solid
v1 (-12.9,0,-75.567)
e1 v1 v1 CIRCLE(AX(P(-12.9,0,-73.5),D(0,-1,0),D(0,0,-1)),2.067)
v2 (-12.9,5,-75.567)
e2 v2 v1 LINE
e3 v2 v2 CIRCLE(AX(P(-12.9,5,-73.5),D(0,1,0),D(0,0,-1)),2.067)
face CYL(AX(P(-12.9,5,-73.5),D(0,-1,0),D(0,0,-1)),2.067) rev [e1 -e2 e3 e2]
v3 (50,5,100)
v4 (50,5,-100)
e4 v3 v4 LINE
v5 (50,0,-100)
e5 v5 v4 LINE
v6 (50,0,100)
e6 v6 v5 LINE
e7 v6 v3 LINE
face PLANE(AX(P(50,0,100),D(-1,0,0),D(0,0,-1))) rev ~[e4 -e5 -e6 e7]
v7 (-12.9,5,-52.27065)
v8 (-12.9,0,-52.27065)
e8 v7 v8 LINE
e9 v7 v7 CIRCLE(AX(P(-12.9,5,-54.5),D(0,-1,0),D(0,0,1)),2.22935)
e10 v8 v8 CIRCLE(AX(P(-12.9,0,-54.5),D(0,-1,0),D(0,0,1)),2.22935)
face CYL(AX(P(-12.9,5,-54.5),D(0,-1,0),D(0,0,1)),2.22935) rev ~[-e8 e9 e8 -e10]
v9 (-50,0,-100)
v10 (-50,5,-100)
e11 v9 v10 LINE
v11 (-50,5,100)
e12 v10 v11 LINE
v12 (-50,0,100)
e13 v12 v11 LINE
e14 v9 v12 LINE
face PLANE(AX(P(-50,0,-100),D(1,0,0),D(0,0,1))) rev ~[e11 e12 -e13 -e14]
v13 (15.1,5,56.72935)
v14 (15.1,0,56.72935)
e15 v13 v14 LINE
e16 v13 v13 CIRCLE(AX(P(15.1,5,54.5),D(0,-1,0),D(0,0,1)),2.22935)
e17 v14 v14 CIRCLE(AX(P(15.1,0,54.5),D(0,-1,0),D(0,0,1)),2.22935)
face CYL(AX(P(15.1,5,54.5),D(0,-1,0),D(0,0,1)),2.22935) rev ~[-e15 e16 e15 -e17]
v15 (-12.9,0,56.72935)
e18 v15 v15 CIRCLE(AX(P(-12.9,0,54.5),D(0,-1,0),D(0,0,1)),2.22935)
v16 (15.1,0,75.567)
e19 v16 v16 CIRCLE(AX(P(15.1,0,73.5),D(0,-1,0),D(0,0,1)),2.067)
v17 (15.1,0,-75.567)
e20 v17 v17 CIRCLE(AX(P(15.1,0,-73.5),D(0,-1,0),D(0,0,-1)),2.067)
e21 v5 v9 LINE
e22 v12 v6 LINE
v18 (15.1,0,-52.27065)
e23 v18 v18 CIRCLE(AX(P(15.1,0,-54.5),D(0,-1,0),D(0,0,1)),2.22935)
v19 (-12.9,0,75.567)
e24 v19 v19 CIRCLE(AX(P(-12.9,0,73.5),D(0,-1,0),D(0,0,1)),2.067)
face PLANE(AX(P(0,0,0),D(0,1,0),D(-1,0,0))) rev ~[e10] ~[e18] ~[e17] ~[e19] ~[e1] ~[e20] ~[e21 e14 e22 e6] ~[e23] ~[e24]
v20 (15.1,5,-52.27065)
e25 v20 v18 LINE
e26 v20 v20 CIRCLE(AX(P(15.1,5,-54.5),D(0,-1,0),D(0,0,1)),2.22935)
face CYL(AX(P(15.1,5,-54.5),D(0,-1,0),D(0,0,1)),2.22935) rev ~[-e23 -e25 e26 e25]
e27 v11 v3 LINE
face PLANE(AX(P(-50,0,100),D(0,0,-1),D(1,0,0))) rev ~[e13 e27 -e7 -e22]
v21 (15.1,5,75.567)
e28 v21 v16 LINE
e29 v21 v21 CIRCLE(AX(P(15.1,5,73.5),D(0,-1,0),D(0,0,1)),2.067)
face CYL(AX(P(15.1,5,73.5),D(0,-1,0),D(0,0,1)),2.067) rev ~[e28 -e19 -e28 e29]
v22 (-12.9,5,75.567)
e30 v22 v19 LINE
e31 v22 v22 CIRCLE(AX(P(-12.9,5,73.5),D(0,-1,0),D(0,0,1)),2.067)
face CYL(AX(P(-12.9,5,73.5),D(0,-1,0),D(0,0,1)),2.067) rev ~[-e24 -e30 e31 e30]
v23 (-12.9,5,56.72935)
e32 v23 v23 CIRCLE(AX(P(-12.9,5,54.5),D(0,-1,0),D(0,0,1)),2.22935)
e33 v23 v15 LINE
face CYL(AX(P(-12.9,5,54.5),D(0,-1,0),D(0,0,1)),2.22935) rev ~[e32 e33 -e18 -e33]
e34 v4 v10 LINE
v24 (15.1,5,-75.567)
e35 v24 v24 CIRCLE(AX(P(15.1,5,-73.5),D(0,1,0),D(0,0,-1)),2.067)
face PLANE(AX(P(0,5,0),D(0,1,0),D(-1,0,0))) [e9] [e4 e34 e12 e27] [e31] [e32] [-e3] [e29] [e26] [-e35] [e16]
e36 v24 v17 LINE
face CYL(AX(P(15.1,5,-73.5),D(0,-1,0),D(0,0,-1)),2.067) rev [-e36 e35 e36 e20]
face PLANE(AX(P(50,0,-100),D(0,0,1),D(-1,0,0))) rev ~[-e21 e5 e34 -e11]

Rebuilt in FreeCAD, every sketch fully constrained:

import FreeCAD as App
import Part
import Sketcher

V = App.Vector
Q = App.Units.Quantity


def add_polygon(sketch, points):
    """Adds a closed chain of lines whose ends are joined by coincident constraints."""
    first, n = sketch.GeometryCount, len(points)
    for a, b in zip(points, points[1:] + points[:1]):
        sketch.addGeometry(Part.LineSegment(App.Vector(*a, 0), App.Vector(*b, 0)), False)
    for i in range(n):
        sketch.addConstraint(Sketcher.Constraint("Coincident", first + i, 2, first + (i + 1) % n, 1))

doc = App.newDocument("Part")
body = doc.addObject("PartDesign::Body", "Body")

# Sketch on XZ plane
sketch1 = body.newObject("Sketcher::SketchObject", "Sketch")
sketch1.AttachmentSupport = (doc.getObject("XZ_Plane"), [""])
sketch1.MapMode = "FlatFace"
add_polygon(sketch1, [(-50, -100), (-50, 100), (50, 100), (50, -100)])  # lines 0-3
sketch1.addConstraint([
    Sketcher.Constraint("Vertical", 0),
    Sketcher.Constraint("Horizontal", 1),
    Sketcher.Constraint("Vertical", 2),
    Sketcher.Constraint("Horizontal", 3),
    Sketcher.Constraint("Symmetric", 0, 2, 2, 2, -1, 1),
    Sketcher.Constraint("DistanceX", 1, 1, 1, 2, Q("100 mm")),
    Sketcher.Constraint("DistanceY", 0, 1, 0, 2, Q("200 mm")),
])
pad1 = body.newObject("PartDesign::Pad", "Pad")
pad1.Profile = sketch1
pad1.Length = 5
pad1.Reversed = True

# Sketch on XZ plane
sketch2 = body.newObject("Sketcher::SketchObject", "Sketch001")
sketch2.AttachmentSupport = (doc.getObject("XZ_Plane"), [""])
sketch2.MapMode = "FlatFace"
sketch2.AttachmentOffset = App.Placement(V(0, 0, -5), App.Rotation())
sketch2.addGeometry([
    Part.Circle(V(-12.9, 54.5, 0), V(0, 0, 1), 2.2),
    Part.Circle(V(15.1, 54.5, 0), V(0, 0, 1), 2.2),
    Part.Circle(V(-12.9, -54.5, 0), V(0, 0, 1), 2.2),
    Part.Circle(V(15.1, -54.5, 0), V(0, 0, 1), 2.2),
], False)
sketch2.addConstraint([
    Sketcher.Constraint("Equal", 0, 1),
    Sketcher.Constraint("Equal", 1, 2),
    Sketcher.Constraint("Equal", 2, 3),
    Sketcher.Constraint("Symmetric", 0, 3, 2, 3, -1),
    Sketcher.Constraint("Symmetric", 1, 3, 3, 3, -1),
    Sketcher.Constraint("Horizontal", 0, 3, 1, 3),
    Sketcher.Constraint("DistanceX", 0, 3, 1, 3, Q("28 mm")),
    Sketcher.Constraint("DistanceY", 2, 3, 0, 3, Q("109 mm")),
    Sketcher.Constraint("Diameter", 0, Q("4.4587 mm")),
    Sketcher.Constraint("DistanceX", 0, 3, -1, 1, Q("12.9 mm")),
])
doc.recompute()
hole = body.newObject("PartDesign::Hole", "Hole")
hole.Profile = sketch2
hole.ThreadType = "None"
hole.Diameter = 4.4587
hole.DepthType = "ThroughAll"
hole.Reversed = True

# Sketch on XZ plane
sketch3 = body.newObject("Sketcher::SketchObject", "Sketch002")
sketch3.AttachmentSupport = (doc.getObject("XZ_Plane"), [""])
sketch3.MapMode = "FlatFace"
sketch3.AttachmentOffset = App.Placement(V(0, 0, -5), App.Rotation())
sketch3.addGeometry([
    Part.Circle(V(15.1, 73.5, 0), V(0, 0, 1), 2.1),
    Part.Circle(V(-12.9, 73.5, 0), V(0, 0, 1), 2.1),
], False)
sketch3.addConstraint([
    Sketcher.Constraint("Equal", 0, 1),
    Sketcher.Constraint("Horizontal", 0, 3, 1, 3),
    Sketcher.Constraint("Diameter", 0, Q("4.134 mm")),
    Sketcher.Constraint("DistanceX", 1, 3, 0, 3, Q("28 mm")),
    Sketcher.Constraint("DistanceX", -1, 1, 0, 3, Q("15.1 mm")),
    Sketcher.Constraint("DistanceY", -1, 1, 0, 3, Q("73.5 mm")),
])
doc.recompute()
hole2 = body.newObject("PartDesign::Hole", "Hole001")
hole2.Profile = sketch3
hole2.ThreadType = "None"
hole2.Diameter = 4.134
hole2.DepthType = "ThroughAll"
hole2.Reversed = True
doc.recompute()

mirrored = body.newObject("PartDesign::Mirrored", "Mirrored")
mirrored.Originals = [hole2]
mirrored.MirrorPlane = (doc.getObject("XY_Plane"), [""])
body.Tip = mirrored

doc.recompute()
